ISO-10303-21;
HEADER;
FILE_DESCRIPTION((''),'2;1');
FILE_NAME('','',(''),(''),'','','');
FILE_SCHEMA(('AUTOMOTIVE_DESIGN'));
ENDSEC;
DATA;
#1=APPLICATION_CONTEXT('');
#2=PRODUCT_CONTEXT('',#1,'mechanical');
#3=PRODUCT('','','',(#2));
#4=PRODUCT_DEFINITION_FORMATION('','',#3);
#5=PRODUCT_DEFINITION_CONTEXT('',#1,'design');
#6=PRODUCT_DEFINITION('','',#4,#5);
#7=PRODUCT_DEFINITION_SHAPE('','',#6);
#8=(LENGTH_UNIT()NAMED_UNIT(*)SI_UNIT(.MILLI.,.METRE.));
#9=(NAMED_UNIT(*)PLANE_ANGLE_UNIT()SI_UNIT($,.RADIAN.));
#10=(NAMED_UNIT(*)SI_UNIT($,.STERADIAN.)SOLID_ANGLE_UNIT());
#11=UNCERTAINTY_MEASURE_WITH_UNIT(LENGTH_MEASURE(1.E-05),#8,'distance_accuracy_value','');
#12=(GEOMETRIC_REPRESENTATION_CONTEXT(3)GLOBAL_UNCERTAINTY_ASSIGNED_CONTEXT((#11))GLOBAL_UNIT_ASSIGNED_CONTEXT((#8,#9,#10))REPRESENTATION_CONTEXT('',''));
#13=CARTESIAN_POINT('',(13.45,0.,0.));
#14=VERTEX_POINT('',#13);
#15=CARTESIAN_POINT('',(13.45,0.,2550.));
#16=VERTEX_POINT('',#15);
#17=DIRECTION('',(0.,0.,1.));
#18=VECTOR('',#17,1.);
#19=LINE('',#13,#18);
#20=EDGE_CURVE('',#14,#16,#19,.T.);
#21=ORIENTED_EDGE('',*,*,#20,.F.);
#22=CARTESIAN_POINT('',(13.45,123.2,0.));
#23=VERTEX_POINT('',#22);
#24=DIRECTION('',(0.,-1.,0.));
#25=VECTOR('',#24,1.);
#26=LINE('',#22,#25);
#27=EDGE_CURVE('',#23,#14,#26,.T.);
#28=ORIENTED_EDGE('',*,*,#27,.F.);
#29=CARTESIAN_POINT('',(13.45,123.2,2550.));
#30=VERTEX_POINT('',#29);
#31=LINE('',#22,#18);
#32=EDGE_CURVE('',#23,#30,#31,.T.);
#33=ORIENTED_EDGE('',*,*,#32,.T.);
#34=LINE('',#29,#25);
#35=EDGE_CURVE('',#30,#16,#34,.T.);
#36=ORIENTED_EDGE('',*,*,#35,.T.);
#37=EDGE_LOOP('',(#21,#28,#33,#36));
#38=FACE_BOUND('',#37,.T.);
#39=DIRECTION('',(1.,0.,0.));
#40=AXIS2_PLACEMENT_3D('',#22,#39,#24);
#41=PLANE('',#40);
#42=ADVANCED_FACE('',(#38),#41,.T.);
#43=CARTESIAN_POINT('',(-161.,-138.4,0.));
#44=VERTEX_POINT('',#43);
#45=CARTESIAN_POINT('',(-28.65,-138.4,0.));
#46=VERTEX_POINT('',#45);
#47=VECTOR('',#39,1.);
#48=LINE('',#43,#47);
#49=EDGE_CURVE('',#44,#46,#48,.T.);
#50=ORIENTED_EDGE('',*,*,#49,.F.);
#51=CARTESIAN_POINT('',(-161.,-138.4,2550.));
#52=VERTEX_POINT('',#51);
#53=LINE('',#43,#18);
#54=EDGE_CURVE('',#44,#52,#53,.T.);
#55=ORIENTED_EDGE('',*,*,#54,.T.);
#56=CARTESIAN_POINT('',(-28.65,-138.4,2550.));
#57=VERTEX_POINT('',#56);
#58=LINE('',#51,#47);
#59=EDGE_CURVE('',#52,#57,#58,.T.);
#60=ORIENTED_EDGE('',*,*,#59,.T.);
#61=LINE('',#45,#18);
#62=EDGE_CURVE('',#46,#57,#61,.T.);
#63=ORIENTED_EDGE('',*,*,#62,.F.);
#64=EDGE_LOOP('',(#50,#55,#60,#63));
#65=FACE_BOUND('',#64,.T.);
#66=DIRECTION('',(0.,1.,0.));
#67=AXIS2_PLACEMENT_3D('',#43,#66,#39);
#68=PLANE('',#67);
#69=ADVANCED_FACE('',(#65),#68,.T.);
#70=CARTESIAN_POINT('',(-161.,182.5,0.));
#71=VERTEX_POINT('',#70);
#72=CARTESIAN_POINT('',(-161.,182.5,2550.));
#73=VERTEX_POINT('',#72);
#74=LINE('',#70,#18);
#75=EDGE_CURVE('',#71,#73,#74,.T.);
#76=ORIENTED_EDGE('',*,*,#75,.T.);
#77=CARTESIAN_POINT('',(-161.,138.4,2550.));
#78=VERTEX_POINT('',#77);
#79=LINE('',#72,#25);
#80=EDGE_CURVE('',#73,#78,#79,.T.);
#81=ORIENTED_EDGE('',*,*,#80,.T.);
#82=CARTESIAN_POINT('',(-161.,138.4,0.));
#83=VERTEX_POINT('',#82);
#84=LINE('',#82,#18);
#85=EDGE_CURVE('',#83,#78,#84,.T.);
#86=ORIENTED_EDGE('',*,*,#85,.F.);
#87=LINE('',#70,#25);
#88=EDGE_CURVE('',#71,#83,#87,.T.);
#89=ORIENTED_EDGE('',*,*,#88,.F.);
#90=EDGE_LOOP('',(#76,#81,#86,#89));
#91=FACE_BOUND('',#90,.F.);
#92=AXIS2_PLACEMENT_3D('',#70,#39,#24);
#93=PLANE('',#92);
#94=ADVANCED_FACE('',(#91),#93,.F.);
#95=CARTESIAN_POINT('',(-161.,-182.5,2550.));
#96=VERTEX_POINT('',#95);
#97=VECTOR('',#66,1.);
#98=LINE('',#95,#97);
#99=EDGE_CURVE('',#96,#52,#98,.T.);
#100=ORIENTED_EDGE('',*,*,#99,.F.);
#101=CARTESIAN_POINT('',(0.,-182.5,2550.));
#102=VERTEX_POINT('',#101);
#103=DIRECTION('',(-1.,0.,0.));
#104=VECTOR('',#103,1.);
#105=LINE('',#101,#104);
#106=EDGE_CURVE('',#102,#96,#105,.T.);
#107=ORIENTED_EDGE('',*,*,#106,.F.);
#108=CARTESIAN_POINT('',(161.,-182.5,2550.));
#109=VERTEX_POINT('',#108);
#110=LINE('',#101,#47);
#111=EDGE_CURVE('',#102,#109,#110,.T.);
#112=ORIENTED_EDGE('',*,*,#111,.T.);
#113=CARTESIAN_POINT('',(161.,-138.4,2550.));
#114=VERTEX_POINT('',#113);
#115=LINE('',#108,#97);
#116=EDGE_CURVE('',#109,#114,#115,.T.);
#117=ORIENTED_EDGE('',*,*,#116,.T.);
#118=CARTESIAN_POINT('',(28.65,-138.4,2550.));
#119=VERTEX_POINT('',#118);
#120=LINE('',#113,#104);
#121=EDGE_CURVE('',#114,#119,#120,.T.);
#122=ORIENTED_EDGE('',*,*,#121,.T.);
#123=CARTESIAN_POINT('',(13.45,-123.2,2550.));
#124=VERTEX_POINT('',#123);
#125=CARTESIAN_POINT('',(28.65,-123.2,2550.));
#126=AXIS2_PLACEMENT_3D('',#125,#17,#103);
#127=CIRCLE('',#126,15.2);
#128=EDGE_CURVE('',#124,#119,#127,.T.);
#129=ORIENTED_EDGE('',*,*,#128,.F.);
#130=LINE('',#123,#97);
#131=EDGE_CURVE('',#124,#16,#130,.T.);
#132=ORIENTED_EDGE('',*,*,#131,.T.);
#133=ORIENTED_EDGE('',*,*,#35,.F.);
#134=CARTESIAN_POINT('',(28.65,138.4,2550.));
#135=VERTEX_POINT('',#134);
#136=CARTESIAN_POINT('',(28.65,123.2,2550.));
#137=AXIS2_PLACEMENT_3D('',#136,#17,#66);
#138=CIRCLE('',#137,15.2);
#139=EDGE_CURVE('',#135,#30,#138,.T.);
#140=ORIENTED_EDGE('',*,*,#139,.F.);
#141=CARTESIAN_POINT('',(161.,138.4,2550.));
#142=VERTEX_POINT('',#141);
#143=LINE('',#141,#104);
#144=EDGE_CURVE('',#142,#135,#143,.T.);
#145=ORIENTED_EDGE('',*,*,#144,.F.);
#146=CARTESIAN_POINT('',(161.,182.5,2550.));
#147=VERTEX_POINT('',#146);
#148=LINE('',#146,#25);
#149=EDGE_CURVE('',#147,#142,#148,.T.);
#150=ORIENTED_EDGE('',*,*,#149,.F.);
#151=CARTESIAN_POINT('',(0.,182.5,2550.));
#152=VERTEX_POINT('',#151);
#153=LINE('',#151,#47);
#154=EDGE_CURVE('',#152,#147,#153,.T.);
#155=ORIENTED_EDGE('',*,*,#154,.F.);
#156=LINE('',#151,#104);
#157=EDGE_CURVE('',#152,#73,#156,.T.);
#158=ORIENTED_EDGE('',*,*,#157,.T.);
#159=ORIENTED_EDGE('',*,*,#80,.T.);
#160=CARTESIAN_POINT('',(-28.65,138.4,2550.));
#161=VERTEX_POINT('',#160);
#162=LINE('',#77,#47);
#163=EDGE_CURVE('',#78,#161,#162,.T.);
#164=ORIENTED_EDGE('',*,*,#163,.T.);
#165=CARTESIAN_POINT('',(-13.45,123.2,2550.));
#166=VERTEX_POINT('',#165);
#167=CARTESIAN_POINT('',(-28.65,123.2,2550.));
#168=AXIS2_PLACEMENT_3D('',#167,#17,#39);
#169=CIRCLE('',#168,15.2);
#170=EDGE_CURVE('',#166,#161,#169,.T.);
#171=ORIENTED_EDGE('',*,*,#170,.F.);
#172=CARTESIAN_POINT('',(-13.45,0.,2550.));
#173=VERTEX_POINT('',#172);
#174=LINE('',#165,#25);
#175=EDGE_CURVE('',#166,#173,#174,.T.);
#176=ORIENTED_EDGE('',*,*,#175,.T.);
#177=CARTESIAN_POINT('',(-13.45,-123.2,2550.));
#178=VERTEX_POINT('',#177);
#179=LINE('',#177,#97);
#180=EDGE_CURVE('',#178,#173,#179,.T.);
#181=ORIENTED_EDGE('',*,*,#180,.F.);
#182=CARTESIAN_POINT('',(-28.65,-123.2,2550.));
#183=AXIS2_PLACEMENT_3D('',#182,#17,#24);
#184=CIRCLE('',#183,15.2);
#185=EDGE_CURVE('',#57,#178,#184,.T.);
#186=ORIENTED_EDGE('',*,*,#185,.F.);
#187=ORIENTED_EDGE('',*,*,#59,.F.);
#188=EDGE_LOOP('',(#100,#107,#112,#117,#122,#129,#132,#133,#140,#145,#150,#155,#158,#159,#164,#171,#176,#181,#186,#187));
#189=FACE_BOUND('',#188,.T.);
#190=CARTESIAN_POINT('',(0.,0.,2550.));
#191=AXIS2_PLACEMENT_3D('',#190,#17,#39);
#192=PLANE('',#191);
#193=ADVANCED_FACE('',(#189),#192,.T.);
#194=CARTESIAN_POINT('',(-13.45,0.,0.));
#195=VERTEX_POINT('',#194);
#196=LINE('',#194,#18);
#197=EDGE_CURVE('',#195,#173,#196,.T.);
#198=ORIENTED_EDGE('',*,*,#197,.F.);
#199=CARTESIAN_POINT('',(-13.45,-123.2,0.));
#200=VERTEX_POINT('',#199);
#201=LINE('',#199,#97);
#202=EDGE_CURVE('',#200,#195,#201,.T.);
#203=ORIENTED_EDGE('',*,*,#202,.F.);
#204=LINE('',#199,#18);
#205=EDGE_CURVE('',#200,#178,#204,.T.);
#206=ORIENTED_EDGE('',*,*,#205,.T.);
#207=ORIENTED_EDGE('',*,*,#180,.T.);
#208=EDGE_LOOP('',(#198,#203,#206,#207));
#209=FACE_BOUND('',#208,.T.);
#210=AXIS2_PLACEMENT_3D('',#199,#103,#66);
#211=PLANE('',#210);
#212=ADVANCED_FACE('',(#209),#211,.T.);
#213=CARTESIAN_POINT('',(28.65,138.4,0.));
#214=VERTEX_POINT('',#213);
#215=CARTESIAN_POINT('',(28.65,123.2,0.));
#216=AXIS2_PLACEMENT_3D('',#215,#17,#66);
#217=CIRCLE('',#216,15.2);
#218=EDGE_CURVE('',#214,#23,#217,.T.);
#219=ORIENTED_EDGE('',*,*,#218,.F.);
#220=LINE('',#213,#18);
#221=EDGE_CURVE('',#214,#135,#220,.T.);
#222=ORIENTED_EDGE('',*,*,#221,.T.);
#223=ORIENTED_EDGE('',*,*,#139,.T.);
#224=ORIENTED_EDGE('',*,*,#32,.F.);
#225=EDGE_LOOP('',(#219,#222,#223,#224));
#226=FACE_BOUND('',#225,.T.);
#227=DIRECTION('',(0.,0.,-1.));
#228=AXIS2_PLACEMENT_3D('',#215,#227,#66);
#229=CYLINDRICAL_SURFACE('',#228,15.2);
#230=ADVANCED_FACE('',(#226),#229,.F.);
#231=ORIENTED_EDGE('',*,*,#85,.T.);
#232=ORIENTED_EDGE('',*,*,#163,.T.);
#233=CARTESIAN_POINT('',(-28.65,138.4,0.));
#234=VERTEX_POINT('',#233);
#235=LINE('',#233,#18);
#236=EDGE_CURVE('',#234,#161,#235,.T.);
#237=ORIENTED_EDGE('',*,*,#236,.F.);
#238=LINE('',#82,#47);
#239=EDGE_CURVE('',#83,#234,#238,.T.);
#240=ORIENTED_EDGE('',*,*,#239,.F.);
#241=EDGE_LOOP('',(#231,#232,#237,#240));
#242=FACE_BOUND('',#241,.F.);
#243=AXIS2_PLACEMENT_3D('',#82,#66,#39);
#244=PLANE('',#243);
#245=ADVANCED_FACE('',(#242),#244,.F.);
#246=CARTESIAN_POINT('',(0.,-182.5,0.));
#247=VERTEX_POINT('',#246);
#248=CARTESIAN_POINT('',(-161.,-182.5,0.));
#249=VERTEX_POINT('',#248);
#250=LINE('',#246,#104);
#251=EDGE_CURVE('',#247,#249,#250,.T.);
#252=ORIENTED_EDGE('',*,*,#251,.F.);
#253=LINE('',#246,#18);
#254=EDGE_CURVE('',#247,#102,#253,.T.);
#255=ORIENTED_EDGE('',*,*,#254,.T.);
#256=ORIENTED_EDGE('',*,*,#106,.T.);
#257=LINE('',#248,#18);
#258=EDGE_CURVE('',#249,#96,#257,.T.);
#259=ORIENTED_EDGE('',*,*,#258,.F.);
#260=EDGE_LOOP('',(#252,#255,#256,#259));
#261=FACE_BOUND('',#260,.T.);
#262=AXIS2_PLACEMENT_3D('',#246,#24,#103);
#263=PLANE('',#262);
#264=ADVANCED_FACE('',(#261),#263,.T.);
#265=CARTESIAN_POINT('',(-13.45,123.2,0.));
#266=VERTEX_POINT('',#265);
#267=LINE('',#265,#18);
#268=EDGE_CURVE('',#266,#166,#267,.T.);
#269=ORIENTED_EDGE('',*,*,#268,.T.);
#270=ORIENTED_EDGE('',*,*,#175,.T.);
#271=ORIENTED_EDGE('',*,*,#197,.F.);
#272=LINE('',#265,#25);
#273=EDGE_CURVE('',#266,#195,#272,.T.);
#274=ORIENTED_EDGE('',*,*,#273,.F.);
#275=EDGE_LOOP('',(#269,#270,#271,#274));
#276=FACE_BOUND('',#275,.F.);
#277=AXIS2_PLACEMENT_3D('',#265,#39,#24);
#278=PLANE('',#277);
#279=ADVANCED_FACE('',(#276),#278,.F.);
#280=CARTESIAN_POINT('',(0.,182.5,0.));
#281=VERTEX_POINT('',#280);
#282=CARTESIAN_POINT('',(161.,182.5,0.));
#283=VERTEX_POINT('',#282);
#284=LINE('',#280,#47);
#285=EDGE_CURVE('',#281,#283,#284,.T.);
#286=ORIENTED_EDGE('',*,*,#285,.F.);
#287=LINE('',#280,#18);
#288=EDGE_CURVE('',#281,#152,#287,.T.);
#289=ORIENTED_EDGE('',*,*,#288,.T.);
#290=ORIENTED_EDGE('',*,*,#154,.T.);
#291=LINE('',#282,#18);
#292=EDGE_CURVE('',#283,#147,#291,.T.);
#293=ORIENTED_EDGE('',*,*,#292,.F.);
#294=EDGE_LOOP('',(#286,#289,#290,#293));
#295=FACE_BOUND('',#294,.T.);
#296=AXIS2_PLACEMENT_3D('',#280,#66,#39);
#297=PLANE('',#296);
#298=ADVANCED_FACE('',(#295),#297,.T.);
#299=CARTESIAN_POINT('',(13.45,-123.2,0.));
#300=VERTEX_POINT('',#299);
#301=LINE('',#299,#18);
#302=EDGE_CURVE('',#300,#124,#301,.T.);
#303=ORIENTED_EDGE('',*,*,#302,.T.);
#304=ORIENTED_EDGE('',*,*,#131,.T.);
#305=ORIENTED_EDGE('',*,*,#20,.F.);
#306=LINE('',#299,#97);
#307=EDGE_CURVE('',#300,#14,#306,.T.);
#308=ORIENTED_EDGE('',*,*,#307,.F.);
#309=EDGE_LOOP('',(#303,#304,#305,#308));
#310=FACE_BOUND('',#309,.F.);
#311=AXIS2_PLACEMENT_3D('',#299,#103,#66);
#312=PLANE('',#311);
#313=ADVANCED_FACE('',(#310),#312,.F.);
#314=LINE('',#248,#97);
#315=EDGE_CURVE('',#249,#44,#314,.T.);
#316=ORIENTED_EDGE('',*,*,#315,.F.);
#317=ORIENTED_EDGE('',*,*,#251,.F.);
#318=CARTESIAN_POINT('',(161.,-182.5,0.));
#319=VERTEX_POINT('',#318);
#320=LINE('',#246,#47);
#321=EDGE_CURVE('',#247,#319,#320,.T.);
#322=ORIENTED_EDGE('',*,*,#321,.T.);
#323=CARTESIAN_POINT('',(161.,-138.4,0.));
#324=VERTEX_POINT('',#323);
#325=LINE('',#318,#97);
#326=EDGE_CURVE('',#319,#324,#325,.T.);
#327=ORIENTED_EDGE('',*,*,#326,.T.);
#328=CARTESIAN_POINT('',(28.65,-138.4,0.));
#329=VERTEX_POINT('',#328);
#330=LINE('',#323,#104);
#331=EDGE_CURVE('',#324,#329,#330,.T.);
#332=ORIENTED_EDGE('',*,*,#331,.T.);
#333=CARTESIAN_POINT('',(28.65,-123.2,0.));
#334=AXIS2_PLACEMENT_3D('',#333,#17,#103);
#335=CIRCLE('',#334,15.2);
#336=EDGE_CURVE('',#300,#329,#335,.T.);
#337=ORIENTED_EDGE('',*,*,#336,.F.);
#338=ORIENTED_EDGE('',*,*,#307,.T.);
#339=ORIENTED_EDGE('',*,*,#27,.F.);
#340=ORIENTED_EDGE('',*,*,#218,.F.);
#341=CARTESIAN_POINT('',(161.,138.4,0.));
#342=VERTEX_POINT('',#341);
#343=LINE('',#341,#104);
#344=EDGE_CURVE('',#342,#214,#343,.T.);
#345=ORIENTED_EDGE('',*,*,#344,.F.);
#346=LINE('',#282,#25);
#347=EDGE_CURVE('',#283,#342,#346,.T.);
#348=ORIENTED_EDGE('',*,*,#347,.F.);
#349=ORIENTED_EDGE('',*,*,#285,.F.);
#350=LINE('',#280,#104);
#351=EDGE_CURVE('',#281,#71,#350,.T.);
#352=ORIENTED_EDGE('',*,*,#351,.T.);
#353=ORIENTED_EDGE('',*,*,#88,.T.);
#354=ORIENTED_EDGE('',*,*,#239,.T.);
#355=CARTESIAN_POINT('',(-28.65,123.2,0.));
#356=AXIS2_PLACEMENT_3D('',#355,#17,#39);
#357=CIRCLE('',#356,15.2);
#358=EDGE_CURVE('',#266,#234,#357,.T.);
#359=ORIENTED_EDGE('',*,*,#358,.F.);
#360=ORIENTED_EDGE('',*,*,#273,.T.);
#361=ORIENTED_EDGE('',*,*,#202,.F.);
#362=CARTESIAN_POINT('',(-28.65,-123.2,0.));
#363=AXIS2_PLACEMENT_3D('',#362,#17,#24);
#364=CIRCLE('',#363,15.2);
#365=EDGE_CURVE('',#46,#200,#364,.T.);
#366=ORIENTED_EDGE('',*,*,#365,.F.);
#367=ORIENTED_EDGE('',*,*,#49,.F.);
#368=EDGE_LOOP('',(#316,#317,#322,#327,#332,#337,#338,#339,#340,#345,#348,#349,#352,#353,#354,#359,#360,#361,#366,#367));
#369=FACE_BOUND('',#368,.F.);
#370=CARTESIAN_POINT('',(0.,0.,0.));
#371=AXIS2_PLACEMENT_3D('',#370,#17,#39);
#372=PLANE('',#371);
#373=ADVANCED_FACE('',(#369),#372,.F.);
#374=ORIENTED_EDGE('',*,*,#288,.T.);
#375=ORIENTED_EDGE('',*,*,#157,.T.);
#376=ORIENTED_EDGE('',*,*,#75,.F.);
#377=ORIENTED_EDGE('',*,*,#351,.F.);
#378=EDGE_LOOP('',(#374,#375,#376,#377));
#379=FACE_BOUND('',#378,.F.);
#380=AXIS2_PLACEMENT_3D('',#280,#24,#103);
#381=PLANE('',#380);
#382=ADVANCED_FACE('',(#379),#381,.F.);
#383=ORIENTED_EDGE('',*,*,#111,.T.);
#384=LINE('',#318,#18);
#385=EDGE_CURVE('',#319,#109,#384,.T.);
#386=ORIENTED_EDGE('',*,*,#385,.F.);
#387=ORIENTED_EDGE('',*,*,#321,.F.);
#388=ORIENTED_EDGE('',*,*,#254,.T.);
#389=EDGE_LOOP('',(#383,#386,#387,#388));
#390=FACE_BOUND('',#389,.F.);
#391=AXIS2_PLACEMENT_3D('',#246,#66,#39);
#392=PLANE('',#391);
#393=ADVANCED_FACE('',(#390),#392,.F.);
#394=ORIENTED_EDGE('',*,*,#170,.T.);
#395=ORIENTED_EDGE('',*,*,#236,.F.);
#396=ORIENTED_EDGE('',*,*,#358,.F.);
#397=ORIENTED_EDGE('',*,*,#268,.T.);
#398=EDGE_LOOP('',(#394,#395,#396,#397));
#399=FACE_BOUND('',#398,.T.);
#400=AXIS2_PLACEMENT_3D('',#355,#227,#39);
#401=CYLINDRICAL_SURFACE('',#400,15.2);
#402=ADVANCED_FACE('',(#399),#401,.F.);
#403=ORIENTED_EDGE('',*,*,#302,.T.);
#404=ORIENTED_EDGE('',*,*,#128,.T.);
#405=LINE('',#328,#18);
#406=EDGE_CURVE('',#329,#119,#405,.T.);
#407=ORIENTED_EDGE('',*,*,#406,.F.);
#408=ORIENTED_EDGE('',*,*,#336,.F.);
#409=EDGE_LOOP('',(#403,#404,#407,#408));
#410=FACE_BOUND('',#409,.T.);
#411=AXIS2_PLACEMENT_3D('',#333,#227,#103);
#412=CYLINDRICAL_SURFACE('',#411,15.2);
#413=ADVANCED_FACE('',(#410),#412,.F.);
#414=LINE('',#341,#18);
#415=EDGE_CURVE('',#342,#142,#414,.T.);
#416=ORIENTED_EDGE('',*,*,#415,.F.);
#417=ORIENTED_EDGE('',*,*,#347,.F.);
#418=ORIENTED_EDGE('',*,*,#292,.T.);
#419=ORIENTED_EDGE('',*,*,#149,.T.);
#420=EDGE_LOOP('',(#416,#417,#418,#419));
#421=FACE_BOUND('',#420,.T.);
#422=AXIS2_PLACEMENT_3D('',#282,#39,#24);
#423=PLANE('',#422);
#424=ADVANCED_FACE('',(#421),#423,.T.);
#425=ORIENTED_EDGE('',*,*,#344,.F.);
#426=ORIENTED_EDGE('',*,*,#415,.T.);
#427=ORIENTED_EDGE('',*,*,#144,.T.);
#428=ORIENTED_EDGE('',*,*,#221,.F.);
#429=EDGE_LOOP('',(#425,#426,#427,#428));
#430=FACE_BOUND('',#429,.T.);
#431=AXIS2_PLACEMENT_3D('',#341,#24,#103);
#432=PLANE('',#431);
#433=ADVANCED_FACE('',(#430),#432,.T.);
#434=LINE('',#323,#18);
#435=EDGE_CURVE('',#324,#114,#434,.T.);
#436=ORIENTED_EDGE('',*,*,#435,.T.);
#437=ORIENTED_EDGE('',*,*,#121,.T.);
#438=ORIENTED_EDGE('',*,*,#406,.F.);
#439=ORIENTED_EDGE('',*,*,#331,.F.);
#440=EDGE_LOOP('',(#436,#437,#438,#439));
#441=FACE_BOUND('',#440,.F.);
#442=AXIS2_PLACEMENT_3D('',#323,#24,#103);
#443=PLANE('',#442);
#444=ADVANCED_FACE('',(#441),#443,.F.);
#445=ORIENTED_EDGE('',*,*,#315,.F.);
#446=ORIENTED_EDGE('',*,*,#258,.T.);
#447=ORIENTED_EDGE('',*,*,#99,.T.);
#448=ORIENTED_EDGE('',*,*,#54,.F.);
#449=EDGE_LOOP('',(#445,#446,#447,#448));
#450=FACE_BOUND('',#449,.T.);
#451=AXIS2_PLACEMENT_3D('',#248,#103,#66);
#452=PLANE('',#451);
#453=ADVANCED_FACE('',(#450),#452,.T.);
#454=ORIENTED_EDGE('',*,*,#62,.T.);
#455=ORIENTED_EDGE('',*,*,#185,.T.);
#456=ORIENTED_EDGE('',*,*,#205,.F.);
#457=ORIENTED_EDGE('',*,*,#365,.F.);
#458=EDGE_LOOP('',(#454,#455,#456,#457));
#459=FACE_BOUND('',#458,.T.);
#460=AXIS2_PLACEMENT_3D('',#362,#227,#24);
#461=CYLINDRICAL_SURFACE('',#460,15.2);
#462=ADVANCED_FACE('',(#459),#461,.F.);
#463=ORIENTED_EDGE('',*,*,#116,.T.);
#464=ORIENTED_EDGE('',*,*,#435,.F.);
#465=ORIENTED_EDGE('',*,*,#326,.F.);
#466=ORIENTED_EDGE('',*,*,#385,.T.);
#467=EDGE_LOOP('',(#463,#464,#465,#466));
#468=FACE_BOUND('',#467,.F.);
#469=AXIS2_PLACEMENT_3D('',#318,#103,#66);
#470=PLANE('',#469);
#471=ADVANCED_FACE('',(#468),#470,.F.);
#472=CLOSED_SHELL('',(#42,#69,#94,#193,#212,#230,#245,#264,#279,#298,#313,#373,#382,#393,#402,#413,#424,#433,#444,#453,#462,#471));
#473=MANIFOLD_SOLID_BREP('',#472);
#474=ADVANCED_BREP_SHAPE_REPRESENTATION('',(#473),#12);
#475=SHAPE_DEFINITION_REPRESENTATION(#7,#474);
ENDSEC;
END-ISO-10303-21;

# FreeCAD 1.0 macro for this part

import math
import FreeCAD as App
import Part
import Sketcher
from FreeCAD import Vector

doc = App.newDocument("Part")
body = doc.addObject("PartDesign::Body", "Body")

sketch1 = body.newObject("Sketcher::SketchObject", "Sketch")
sketch1.AttachmentSupport = (doc.getObject("XY_Plane"), [""])
sketch1.MapMode = "FlatFace"
sketch1.addGeometry(Part.LineSegment(Vector(-161, -138.4, 0), Vector(-161, -182.5, 0)), False)
sketch1.addGeometry(Part.LineSegment(Vector(-161, -182.5, 0), Vector(161, -182.5, 0)), False)
sketch1.addGeometry(Part.LineSegment(Vector(161, -182.5, 0), Vector(161, -138.4, 0)), False)
sketch1.addGeometry(Part.LineSegment(Vector(161, -138.4, 0), Vector(28.65, -138.4, 0)), False)
sketch1.addGeometry(Part.ArcOfCircle(Part.Circle(Vector(28.65, -123.2, 0), Vector(0, 0, 1), 15.2), math.radians(180), math.radians(270)), False)
sketch1.addGeometry(Part.LineSegment(Vector(13.45, -123.2, 0), Vector(13.45, 123.2, 0)), False)
sketch1.addGeometry(Part.ArcOfCircle(Part.Circle(Vector(28.65, 123.2, 0), Vector(0, 0, 1), 15.2), math.radians(90), math.radians(180)), False)
sketch1.addGeometry(Part.LineSegment(Vector(28.65, 138.4, 0), Vector(161, 138.4, 0)), False)
sketch1.addGeometry(Part.LineSegment(Vector(161, 138.4, 0), Vector(161, 182.5, 0)), False)
sketch1.addGeometry(Part.LineSegment(Vector(161, 182.5, 0), Vector(-161, 182.5, 0)), False)
sketch1.addGeometry(Part.LineSegment(Vector(-161, 182.5, 0), Vector(-161, 138.4, 0)), False)
sketch1.addGeometry(Part.LineSegment(Vector(-161, 138.4, 0), Vector(-28.65, 138.4, 0)), False)
sketch1.addGeometry(Part.ArcOfCircle(Part.Circle(Vector(-28.65, 123.2, 0), Vector(0, 0, 1), 15.2), math.radians(0), math.radians(90)), False)
sketch1.addGeometry(Part.LineSegment(Vector(-13.45, 123.2, 0), Vector(-13.45, -123.2, 0)), False)
sketch1.addGeometry(Part.ArcOfCircle(Part.Circle(Vector(-28.65, -123.2, 0), Vector(0, 0, 1), 15.2), math.radians(-90), math.radians(0)), False)
sketch1.addGeometry(Part.LineSegment(Vector(-28.65, -138.4, 0), Vector(-161, -138.4, 0)), False)
sketch1.addConstraint(Sketcher.Constraint("Coincident", 0, 2, 1, 1))
sketch1.addConstraint(Sketcher.Constraint("Coincident", 1, 2, 2, 1))
sketch1.addConstraint(Sketcher.Constraint("Coincident", 2, 2, 3, 1))
sketch1.addConstraint(Sketcher.Constraint("Tangent", 3, 2, 4, 2))
sketch1.addConstraint(Sketcher.Constraint("Tangent", 4, 1, 5, 1))
sketch1.addConstraint(Sketcher.Constraint("Tangent", 5, 2, 6, 2))
sketch1.addConstraint(Sketcher.Constraint("Tangent", 6, 1, 7, 1))
sketch1.addConstraint(Sketcher.Constraint("Coincident", 7, 2, 8, 1))
sketch1.addConstraint(Sketcher.Constraint("Coincident", 8, 2, 9, 1))
sketch1.addConstraint(Sketcher.Constraint("Coincident", 9, 2, 10, 1))
sketch1.addConstraint(Sketcher.Constraint("Coincident", 10, 2, 11, 1))
sketch1.addConstraint(Sketcher.Constraint("Tangent", 11, 2, 12, 2))
sketch1.addConstraint(Sketcher.Constraint("Tangent", 12, 1, 13, 1))
sketch1.addConstraint(Sketcher.Constraint("Tangent", 13, 2, 14, 2))
sketch1.addConstraint(Sketcher.Constraint("Tangent", 14, 1, 15, 1))
sketch1.addConstraint(Sketcher.Constraint("Coincident", 15, 2, 0, 1))
sketch1.addConstraint(Sketcher.Constraint("Vertical", 0))
sketch1.addConstraint(Sketcher.Constraint("Horizontal", 1))
sketch1.addConstraint(Sketcher.Constraint("Vertical", 2))
sketch1.addConstraint(Sketcher.Constraint("Horizontal", 3))
sketch1.addConstraint(Sketcher.Constraint("Vertical", 5))
sketch1.addConstraint(Sketcher.Constraint("Horizontal", 7))
sketch1.addConstraint(Sketcher.Constraint("Vertical", 8))
sketch1.addConstraint(Sketcher.Constraint("Horizontal", 9))
sketch1.addConstraint(Sketcher.Constraint("Vertical", 10))
sketch1.addConstraint(Sketcher.Constraint("Horizontal", 11))
sketch1.addConstraint(Sketcher.Constraint("Vertical", 13))
sketch1.addConstraint(Sketcher.Constraint("Horizontal", 15))
sketch1.addConstraint(Sketcher.Constraint("Equal", 4, 6))
sketch1.addConstraint(Sketcher.Constraint("Equal", 6, 12))
sketch1.addConstraint(Sketcher.Constraint("Equal", 12, 14))
sketch1.addConstraint(Sketcher.Constraint("Symmetric", 4, 3, 12, 3, -1, 1))
sketch1.addConstraint(Sketcher.Constraint("Symmetric", 0, 2, 8, 2, -1, 1))
sketch1.addConstraint(Sketcher.Constraint("Symmetric", 7, 2, 10, 2, -2))
sketch1.addConstraint(Sketcher.Constraint("Symmetric", 2, 2, 15, 2, -2))
sketch1.addConstraint(Sketcher.Constraint("Radius", 4, 15.2))
sketch1.addConstraint(Sketcher.Constraint("DistanceY", 0, 2, 0, 1, 44.1))
sketch1.addConstraint(Sketcher.Constraint("DistanceX", 0, 2, -1, 1, 161.0))
sketch1.addConstraint(Sketcher.Constraint("DistanceY", 0, 2, -1, 1, 182.5))
sketch1.addConstraint(Sketcher.Constraint("DistanceX", -1, 1, 4, 1, 13.45))
pad1 = body.newObject("PartDesign::Pad", "Pad")
pad1.Profile = sketch1
pad1.Length = 2550

doc.recompute()
